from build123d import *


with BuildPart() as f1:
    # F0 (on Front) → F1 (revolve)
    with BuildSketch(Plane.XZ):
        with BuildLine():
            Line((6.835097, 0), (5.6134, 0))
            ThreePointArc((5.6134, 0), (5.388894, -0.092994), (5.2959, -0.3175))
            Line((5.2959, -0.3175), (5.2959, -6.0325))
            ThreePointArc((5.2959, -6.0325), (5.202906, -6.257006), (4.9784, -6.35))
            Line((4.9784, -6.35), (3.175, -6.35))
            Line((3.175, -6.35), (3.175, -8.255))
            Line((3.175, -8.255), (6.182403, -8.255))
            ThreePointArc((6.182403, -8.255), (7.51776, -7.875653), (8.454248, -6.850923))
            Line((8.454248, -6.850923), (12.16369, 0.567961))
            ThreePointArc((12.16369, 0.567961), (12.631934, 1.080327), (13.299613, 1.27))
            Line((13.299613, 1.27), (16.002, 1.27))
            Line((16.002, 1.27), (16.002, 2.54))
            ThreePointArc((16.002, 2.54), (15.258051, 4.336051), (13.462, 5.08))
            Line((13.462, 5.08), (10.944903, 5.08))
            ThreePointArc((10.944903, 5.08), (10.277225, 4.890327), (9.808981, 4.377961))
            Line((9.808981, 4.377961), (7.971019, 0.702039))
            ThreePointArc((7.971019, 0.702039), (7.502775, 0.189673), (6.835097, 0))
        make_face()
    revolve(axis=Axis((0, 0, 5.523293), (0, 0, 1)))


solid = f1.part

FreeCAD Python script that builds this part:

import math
import FreeCAD as App
import Part
import Sketcher

V = App.Vector
Q = App.Units.Quantity

doc = App.newDocument("Part")
body = doc.addObject("PartDesign::Body", "Body")

sketch1 = body.newObject("Sketcher::SketchObject", "Sketch")
sketch1.AttachmentSupport = (doc.getObject("XZ_Plane"), [""])
sketch1.MapMode = "FlatFace"
sketch1.addGeometry(Part.LineSegment(V(6.84, 0, 0), V(5.61, 0, 0)), False)
sketch1.addGeometry(Part.ArcOfCircle(Part.Circle(V(5.61, -0.32, 0), V(0, 0, 1), 0.32), math.radians(90), math.radians(180)), False)
sketch1.addGeometry(Part.LineSegment(V(5.3, -0.32, 0), V(5.3, -6.03, 0)), False)
sketch1.addGeometry(Part.ArcOfCircle(Part.Circle(V(4.98, -6.03, 0), V(0, 0, 1), 0.32), math.radians(-90), math.radians(0)), False)
sketch1.addGeometry(Part.LineSegment(V(4.98, -6.35, 0), V(3.17, -6.35, 0)), False)
sketch1.addGeometry(Part.LineSegment(V(3.17, -6.35, 0), V(3.17, -8.26, 0)), False)
sketch1.addGeometry(Part.LineSegment(V(3.17, -8.26, 0), V(6.18, -8.26, 0)), False)
sketch1.addGeometry(Part.ArcOfCircle(Part.Circle(V(6.18, -5.71, 0), V(0, 0, 1), 2.54), math.radians(-90), math.radians(-27)), False)
sketch1.addGeometry(Part.LineSegment(V(8.45, -6.85, 0), V(12.16, 0.57, 0)), False)
sketch1.addGeometry(Part.ArcOfCircle(Part.Circle(V(13.3, 0, 0), V(0, 0, 1), 1.27), math.radians(90), math.radians(153)), False)
sketch1.addGeometry(Part.LineSegment(V(13.3, 1.27, 0), V(16, 1.27, 0)), False)
sketch1.addGeometry(Part.LineSegment(V(16, 1.27, 0), V(16, 2.54, 0)), False)
sketch1.addGeometry(Part.ArcOfCircle(Part.Circle(V(13.46, 2.54, 0), V(0, 0, 1), 2.54), math.radians(0), math.radians(90)), False)
sketch1.addGeometry(Part.LineSegment(V(13.46, 5.08, 0), V(10.94, 5.08, 0)), False)
sketch1.addGeometry(Part.ArcOfCircle(Part.Circle(V(10.94, 3.81, 0), V(0, 0, 1), 1.27), math.radians(90), math.radians(153)), False)
sketch1.addGeometry(Part.LineSegment(V(9.81, 4.38, 0), V(7.97, 0.7, 0)), False)
sketch1.addGeometry(Part.ArcOfCircle(Part.Circle(V(6.84, 1.27, 0), V(0, 0, 1), 1.27), math.radians(-90), math.radians(-27)), False)
sketch1.addConstraint(Sketcher.Constraint("Coincident", 0, 2, 1, 1))
sketch1.addConstraint(Sketcher.Constraint("Coincident", 1, 2, 2, 1))
sketch1.addConstraint(Sketcher.Constraint("Coincident", 2, 2, 3, 2))
sketch1.addConstraint(Sketcher.Constraint("Coincident", 3, 1, 4, 1))
sketch1.addConstraint(Sketcher.Constraint("Coincident", 4, 2, 5, 1))
sketch1.addConstraint(Sketcher.Constraint("Coincident", 5, 2, 6, 1))
sketch1.addConstraint(Sketcher.Constraint("Tangent", 6, 2, 7, 1))
sketch1.addConstraint(Sketcher.Constraint("Tangent", 7, 2, 8, 1))
sketch1.addConstraint(Sketcher.Constraint("Tangent", 8, 2, 9, 2))
sketch1.addConstraint(Sketcher.Constraint("Tangent", 9, 1, 10, 1))
sketch1.addConstraint(Sketcher.Constraint("Coincident", 10, 2, 11, 1))
sketch1.addConstraint(Sketcher.Constraint("Tangent", 11, 2, 12, 1))
sketch1.addConstraint(Sketcher.Constraint("Tangent", 12, 2, 13, 1))
sketch1.addConstraint(Sketcher.Constraint("Tangent", 13, 2, 14, 1))
sketch1.addConstraint(Sketcher.Constraint("Tangent", 14, 2, 15, 1))
sketch1.addConstraint(Sketcher.Constraint("Tangent", 15, 2, 16, 2))
sketch1.addConstraint(Sketcher.Constraint("Tangent", 16, 1, 0, 1))
sketch1.addConstraint(Sketcher.Constraint("Horizontal", 0))
sketch1.addConstraint(Sketcher.Constraint("Vertical", 2))
sketch1.addConstraint(Sketcher.Constraint("Horizontal", 4))
sketch1.addConstraint(Sketcher.Constraint("Vertical", 5))
sketch1.addConstraint(Sketcher.Constraint("Horizontal", 6))
sketch1.addConstraint(Sketcher.Constraint("Horizontal", 10))
sketch1.addConstraint(Sketcher.Constraint("Vertical", 11))
sketch1.addConstraint(Sketcher.Constraint("Horizontal", 13))
sketch1.addConstraint(Sketcher.Constraint("Equal", 1, 3))
sketch1.addConstraint(Sketcher.Constraint("Equal", 7, 12))
sketch1.addConstraint(Sketcher.Constraint("Equal", 9, 14))
sketch1.addConstraint(Sketcher.Constraint("Equal", 14, 16))
sketch1.addConstraint(Sketcher.Constraint("PointOnObject", 0, 2, -1))
sketch1.addConstraint(Sketcher.Constraint("Parallel", 8, 15))
sketch1.addConstraint(Sketcher.Constraint("Horizontal", 3, 3, 2, 2))
sketch1.addConstraint(Sketcher.Constraint("Vertical", 1, 3, 0, 2))
sketch1.addConstraint(Sketcher.Constraint("Radius", 7, Q("0.1 in")))
sketch1.addConstraint(Sketcher.Constraint("Radius", 9, Q("0.0499999 in")))
sketch1.addConstraint(Sketcher.Constraint("DistanceY", 11, 1, 11, 2, Q("0.05 in")))
sketch1.addConstraint(Sketcher.Constraint("DistanceY", -1, 1, 12, 3, Q("0.1 in")))
sketch1.addConstraint(Sketcher.Constraint("Radius", 1, Q("0.0125001 in")))
sketch1.addConstraint(Sketcher.Constraint("DistanceX", 4, 2, 4, 1, Q("0.071 in")))
sketch1.addConstraint(Sketcher.Constraint("DistanceY", 2, 2, 2, 1, Q("0.225 in")))
sketch1.addConstraint(Sketcher.Constraint("DistanceY", 5, 2, 5, 1, Q("0.075 in")))
sketch1.addConstraint(Sketcher.Constraint("DistanceX", -1, 1, 12, 3, Q("0.53 in")))
sketch1.addConstraint(Sketcher.Constraint("DistanceY", 3, 1, -1, 1, Q("0.25 in")))
sketch1.addConstraint(Sketcher.Constraint("DistanceX", -1, 1, 1, 3, Q("0.2210001 in")))
sketch1.addConstraint(Sketcher.Constraint("DistanceX", -1, 1, 3, 1, Q("0.196 in")))
sketch1.addConstraint(Sketcher.Constraint("DistanceX", 7, 3, 14, 3, Q("0.1875 in")))
sketch1.addConstraint(Sketcher.Constraint("DistanceX", -1, 1, 14, 3, Q("10.944902 mm")))
sketch1.addConstraint(Sketcher.Constraint("DistanceX", -1, 1, 16, 3, Q("6.835098 mm")))
revolution = body.newObject("PartDesign::Revolution", "Revolution")
revolution.Profile = sketch1
revolution.ReferenceAxis = (sketch1, ["V_Axis"])
revolution.Angle = 360

doc.recompute()
